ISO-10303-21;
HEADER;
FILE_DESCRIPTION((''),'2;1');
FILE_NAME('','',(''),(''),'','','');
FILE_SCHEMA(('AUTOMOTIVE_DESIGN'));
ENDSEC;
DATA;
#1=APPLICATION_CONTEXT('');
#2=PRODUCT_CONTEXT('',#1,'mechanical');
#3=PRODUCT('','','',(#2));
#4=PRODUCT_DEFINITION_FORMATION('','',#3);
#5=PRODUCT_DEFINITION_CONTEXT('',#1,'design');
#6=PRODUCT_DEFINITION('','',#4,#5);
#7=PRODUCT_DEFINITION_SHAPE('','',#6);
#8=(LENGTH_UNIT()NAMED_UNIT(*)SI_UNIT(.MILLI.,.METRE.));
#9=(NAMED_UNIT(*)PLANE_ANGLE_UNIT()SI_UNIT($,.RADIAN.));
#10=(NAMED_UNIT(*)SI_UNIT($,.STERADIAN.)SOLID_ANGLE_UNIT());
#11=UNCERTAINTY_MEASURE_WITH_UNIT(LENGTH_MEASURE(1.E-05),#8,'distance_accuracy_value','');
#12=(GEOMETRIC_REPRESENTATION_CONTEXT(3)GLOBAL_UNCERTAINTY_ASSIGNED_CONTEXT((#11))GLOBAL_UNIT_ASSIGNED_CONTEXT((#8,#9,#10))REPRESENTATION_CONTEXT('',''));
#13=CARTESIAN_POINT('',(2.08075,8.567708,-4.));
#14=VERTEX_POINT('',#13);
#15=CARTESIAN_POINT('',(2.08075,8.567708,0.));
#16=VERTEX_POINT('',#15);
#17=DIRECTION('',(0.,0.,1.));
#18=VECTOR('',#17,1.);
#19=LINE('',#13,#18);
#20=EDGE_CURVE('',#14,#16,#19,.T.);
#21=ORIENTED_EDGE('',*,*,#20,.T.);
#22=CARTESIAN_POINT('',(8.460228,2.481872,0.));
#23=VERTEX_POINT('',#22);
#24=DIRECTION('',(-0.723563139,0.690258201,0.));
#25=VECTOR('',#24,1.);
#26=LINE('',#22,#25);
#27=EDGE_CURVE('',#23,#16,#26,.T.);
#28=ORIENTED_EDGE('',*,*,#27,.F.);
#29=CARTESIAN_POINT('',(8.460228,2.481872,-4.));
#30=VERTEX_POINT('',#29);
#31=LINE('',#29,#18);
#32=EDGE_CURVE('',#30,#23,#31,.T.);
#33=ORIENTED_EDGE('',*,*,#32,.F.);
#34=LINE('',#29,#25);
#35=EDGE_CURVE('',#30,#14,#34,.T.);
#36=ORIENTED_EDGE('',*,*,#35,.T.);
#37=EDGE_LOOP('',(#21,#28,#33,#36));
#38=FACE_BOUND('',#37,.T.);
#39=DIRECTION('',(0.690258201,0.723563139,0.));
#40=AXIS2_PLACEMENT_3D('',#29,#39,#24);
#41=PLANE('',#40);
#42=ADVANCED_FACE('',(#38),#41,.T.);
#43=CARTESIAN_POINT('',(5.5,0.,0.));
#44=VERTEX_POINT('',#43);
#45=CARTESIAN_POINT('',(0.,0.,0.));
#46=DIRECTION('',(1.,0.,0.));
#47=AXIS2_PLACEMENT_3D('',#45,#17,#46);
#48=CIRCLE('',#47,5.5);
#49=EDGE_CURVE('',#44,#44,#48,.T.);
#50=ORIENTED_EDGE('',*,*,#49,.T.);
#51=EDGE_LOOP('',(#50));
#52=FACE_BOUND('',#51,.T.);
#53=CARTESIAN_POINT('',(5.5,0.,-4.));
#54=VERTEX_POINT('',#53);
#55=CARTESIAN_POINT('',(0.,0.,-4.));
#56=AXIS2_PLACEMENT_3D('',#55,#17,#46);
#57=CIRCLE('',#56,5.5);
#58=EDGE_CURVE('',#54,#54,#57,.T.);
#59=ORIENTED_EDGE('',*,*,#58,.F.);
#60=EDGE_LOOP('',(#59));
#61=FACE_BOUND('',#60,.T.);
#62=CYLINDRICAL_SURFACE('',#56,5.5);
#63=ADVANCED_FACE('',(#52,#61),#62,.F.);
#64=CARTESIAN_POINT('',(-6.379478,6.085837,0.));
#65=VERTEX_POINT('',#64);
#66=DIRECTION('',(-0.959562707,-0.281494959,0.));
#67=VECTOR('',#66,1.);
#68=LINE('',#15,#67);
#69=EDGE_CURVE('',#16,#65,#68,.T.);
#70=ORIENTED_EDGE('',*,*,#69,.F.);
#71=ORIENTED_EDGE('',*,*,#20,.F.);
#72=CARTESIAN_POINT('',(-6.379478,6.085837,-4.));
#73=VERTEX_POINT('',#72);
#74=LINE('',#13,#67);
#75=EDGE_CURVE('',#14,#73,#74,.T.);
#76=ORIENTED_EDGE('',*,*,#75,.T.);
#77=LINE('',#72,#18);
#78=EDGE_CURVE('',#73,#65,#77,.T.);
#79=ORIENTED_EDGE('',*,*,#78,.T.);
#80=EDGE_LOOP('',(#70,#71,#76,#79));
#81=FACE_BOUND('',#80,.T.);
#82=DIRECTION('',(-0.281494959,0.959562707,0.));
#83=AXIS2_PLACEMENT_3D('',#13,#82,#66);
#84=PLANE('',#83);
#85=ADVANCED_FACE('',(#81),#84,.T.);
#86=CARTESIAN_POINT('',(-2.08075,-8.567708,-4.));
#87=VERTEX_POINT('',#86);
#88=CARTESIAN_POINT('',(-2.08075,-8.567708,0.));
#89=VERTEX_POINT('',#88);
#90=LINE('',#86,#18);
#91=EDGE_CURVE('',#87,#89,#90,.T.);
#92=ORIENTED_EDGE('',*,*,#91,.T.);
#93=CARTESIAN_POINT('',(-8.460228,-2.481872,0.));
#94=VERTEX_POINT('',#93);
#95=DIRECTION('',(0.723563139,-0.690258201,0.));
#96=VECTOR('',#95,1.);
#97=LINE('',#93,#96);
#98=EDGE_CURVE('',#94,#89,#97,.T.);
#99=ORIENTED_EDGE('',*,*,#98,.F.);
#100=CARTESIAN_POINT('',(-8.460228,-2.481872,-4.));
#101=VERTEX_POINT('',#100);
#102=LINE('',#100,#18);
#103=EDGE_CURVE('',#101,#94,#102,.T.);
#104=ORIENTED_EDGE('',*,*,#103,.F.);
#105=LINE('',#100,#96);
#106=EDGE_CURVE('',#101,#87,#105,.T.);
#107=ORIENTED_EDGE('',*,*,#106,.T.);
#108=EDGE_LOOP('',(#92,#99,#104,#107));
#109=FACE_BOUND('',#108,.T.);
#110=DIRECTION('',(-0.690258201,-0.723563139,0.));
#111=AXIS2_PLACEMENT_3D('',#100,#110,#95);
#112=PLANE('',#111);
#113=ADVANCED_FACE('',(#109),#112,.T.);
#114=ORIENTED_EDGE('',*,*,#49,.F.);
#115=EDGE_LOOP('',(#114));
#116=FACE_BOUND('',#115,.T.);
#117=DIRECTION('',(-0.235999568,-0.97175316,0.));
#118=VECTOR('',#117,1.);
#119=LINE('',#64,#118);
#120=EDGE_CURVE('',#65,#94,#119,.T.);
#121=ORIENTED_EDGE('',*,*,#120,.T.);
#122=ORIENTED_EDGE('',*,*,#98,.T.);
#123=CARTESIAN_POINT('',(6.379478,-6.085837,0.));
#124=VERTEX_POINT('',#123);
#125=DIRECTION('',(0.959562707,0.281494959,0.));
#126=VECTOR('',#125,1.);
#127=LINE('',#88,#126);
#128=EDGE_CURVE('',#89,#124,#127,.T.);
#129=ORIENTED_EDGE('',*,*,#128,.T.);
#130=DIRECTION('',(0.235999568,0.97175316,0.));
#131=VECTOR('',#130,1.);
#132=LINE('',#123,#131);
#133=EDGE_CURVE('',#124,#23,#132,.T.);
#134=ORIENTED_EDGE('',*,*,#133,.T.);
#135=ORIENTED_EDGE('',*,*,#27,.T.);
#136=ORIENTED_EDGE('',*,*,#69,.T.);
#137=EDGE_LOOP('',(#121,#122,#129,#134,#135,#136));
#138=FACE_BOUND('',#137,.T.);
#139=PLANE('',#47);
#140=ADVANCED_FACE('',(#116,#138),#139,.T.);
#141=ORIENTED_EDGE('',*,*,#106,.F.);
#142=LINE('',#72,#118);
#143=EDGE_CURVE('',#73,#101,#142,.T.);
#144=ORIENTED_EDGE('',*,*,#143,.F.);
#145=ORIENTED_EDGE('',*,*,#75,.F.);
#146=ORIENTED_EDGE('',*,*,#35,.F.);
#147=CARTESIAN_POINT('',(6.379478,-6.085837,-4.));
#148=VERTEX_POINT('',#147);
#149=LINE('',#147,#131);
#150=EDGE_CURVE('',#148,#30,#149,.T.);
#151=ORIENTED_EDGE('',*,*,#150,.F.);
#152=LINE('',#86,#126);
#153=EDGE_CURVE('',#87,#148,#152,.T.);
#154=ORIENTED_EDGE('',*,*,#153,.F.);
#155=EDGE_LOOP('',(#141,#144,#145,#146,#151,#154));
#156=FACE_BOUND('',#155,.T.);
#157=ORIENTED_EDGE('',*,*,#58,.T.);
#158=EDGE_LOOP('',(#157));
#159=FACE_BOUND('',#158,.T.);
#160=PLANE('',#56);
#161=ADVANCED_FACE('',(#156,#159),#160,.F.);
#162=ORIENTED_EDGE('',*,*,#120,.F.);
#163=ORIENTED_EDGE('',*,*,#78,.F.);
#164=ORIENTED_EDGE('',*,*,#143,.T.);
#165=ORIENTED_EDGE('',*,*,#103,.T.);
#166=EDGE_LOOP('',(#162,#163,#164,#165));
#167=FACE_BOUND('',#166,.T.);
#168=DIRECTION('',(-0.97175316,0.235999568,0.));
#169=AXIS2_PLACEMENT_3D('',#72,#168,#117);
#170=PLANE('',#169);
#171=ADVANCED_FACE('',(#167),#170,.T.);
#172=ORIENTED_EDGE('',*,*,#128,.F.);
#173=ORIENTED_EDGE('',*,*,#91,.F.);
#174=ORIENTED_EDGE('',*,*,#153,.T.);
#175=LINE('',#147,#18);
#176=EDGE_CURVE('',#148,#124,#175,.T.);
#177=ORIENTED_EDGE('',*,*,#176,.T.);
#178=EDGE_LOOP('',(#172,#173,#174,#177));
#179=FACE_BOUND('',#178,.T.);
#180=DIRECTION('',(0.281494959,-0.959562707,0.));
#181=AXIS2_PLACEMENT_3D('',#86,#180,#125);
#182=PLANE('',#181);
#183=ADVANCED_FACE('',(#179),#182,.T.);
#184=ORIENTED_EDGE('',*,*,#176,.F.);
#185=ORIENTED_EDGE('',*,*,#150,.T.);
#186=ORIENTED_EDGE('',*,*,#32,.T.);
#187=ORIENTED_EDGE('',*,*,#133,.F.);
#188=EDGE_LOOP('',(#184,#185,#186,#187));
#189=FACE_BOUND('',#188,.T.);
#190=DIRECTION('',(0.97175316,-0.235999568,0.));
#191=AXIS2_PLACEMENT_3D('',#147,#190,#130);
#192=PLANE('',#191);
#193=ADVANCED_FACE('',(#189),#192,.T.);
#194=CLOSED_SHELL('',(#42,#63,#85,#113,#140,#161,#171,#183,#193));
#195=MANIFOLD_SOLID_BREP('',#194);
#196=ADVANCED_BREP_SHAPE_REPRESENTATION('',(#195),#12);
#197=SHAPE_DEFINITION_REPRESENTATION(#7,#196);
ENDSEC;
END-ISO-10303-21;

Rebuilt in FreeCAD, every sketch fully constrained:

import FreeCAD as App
import Part
import Sketcher

V = App.Vector
Q = App.Units.Quantity


def add_polygon(sketch, points):
    """Adds a closed chain of lines whose ends are joined by coincident constraints."""
    first, n = sketch.GeometryCount, len(points)
    for a, b in zip(points, points[1:] + points[:1]):
        sketch.addGeometry(Part.LineSegment(App.Vector(*a, 0), App.Vector(*b, 0)), False)
    for i in range(n):
        sketch.addConstraint(Sketcher.Constraint("Coincident", first + i, 2, first + (i + 1) % n, 1))

doc = App.newDocument("Part")
body = doc.addObject("PartDesign::Body", "Body")

sketch1 = body.newObject("Sketcher::SketchObject", "Sketch")
sketch1.AttachmentSupport = (doc.getObject("XY_Plane"), [""])
sketch1.MapMode = "FlatFace"
add_polygon(sketch1, [(2, 9), (-6, 6), (-8, -2), (-2, -9), (6, -6), (8, 2)])
sketch1.addGeometry(Part.Circle(V(0, 0, 0), V(0, 0, 1), 6), False)
sketch1.addConstraint([
    Sketcher.Constraint("Coincident", 6, 3, -1, 1),
    Sketcher.Constraint("Symmetric", 0, 2, 3, 2, -1, 1),
    Sketcher.Constraint("Symmetric", 1, 2, 4, 2, -1, 1),
    Sketcher.Constraint("Symmetric", 2, 2, 5, 2, -1, 1),
    Sketcher.Constraint("Equal", 0, 1),
    Sketcher.Constraint("Equal", 1, 2),
    Sketcher.Constraint("Diameter", 6, Q("11 mm")),
    Sketcher.Constraint("DistanceX", 0, 2, -1, 1, Q("6.379478 mm")),
    Sketcher.Constraint("DistanceX", 1, 2, -1, 1, Q("8.460228 mm")),
    Sketcher.Constraint("DistanceY", 1, 2, -1, 1, Q("2.481872 mm")),
    Sketcher.Constraint("DistanceX", 2, 2, -1, 1, Q("2.08075 mm")),
])
pad1 = body.newObject("PartDesign::Pad", "Pad")
pad1.Profile = sketch1
pad1.Length = 4
pad1.Reversed = True

doc.recompute()
